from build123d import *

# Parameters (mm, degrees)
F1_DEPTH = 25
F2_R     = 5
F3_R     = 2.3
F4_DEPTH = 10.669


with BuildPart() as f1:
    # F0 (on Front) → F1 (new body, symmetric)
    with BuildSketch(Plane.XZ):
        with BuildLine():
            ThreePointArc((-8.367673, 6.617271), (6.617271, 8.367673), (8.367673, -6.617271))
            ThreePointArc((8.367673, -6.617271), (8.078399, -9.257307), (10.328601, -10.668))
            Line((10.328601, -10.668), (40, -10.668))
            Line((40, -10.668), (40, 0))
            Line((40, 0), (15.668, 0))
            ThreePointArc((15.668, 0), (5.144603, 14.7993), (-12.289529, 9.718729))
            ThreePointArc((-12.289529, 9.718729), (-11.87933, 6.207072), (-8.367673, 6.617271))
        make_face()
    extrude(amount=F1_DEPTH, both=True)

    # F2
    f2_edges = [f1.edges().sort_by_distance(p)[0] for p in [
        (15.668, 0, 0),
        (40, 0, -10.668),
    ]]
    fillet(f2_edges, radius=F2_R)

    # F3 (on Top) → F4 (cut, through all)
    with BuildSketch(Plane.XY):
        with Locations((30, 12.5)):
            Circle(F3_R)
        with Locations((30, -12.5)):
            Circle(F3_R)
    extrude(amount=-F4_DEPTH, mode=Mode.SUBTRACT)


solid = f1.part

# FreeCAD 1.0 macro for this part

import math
import FreeCAD as App
import Part
import Sketcher
from FreeCAD import Vector


def edges_at(feature, points):
    """Names of the edges that pass closest to the given points."""
    edges = feature.Shape.Edges
    near = lambda p: min(range(len(edges)), key=lambda i: edges[i].distToShape(Part.Vertex(*p))[0])
    return sorted({f"Edge{near(p) + 1}" for p in points})

doc = App.newDocument("Part")
params = doc.addObject("Spreadsheet::Sheet", "Params")
for row, (alias, value) in enumerate([
    ("sketch1_radius", "2.5 mm"),
    ("pad1_length", "50 mm"),
    ("fillet_radius", "5 mm"),
    ("sketch2_diameter", "4.6 mm"),
], start=1):
    params.set(f"A{row}", alias)
    params.set(f"B{row}", "=" + value)
    params.setAlias(f"B{row}", alias)

body = doc.addObject("PartDesign::Body", "Body")

sketch1 = body.newObject("Sketcher::SketchObject", "Sketch")
sketch1.AttachmentSupport = (doc.getObject("XZ_Plane"), [""])
sketch1.MapMode = "FlatFace"
sketch1.addGeometry([
    Part.ArcOfCircle(Part.Circle(Vector(0, 0, 0), Vector(0, 0, 1), 10.668), math.radians(-38.337433), math.radians(141.662567)),
    Part.ArcOfCircle(Part.Circle(Vector(10.328601, -8.168, 0), Vector(0, 0, 1), 2.5), math.radians(141.662569), math.radians(269.999993)),
    Part.LineSegment(Vector(10.328601, -10.668, 0), Vector(40, -10.668, 0)),
    Part.LineSegment(Vector(40, -10.668, 0), Vector(40, 0, 0)),
    Part.LineSegment(Vector(40, 0, 0), Vector(15.668, 0, 0)),
    Part.ArcOfCircle(Part.Circle(Vector(0, 0, 0), Vector(0, 0, 1), 15.668), math.radians(0), math.radians(141.662567)),
    Part.ArcOfCircle(Part.Circle(Vector(-10.328601, 8.168, 0), Vector(0, 0, 1), 2.5), math.radians(141.662565), math.radians(321.662565)),
], False)
sketch1.addConstraint([
    Sketcher.Constraint("Tangent", 0, 1, 1, 1),
    Sketcher.Constraint("Tangent", 1, 2, 2, 1),
    Sketcher.Constraint("Coincident", 2, 2, 3, 1),
    Sketcher.Constraint("Coincident", 3, 2, 4, 1),
    Sketcher.Constraint("Coincident", 4, 2, 5, 1),
    Sketcher.Constraint("Tangent", 5, 2, 6, 1),
    Sketcher.Constraint("Tangent", 6, 2, 0, 2),
    Sketcher.Constraint("Horizontal", 2),
    Sketcher.Constraint("Vertical", 3),
    Sketcher.Constraint("Horizontal", 4),
    Sketcher.Constraint("Coincident", 0, 3, -1, 1),
    Sketcher.Constraint("Coincident", 5, 3, -1, 1),
    Sketcher.Constraint("Equal", 1, 6),
    Sketcher.Constraint("PointOnObject", 3, 2, -1),
    Sketcher.Constraint("Radius", 1, 2.5),
    Sketcher.Constraint("DistanceX", -1, 1, 2, 2, 40.0),
    Sketcher.Constraint("Radius", 0, 10.668),
    Sketcher.Constraint("DistanceY", 3, 1, 3, 2, 10.668),
    Sketcher.Constraint("DistanceY", -1, 1, 6, 3, 8.168),
])
sketch1.setExpression("Constraints[14]", "Params.sketch1_radius")
pad1 = body.newObject("PartDesign::Pad", "Pad")
pad1.Profile = sketch1
pad1.setExpression("Length", "Params.pad1_length")
pad1.Midplane = True
doc.recompute()

fillet = body.newObject("PartDesign::Fillet", "Fillet")
fillet.Base = (pad1, edges_at(pad1, [(15.668, 0, 0), (40, 0, -10.668)]))
fillet.setExpression("Radius", "Params.fillet_radius")

sketch2 = body.newObject("Sketcher::SketchObject", "Sketch001")
sketch2.AttachmentSupport = (doc.getObject("XY_Plane"), [""])
sketch2.MapMode = "FlatFace"
sketch2.addGeometry([
    Part.Circle(Vector(30, 12.5, 0), Vector(0, 0, 1), 2.3),
    Part.Circle(Vector(30, -12.5, 0), Vector(0, 0, 1), 2.3),
], False)
sketch2.addConstraint([
    Sketcher.Constraint("Equal", 0, 1),
    Sketcher.Constraint("Symmetric", 0, 3, 1, 3, -1),
    Sketcher.Constraint("Diameter", 0, 4.6),
    Sketcher.Constraint("DistanceX", -1, 1, 0, 3, 30.0),
    Sketcher.Constraint("DistanceY", 1, 3, 0, 3, 25.0),
])
sketch2.setExpression("Constraints[2]", "Params.sketch2_diameter")
pocket1 = body.newObject("PartDesign::Pocket", "Pocket")
pocket1.Profile = sketch2
pocket1.Type = "ThroughAll"

doc.recompute()
